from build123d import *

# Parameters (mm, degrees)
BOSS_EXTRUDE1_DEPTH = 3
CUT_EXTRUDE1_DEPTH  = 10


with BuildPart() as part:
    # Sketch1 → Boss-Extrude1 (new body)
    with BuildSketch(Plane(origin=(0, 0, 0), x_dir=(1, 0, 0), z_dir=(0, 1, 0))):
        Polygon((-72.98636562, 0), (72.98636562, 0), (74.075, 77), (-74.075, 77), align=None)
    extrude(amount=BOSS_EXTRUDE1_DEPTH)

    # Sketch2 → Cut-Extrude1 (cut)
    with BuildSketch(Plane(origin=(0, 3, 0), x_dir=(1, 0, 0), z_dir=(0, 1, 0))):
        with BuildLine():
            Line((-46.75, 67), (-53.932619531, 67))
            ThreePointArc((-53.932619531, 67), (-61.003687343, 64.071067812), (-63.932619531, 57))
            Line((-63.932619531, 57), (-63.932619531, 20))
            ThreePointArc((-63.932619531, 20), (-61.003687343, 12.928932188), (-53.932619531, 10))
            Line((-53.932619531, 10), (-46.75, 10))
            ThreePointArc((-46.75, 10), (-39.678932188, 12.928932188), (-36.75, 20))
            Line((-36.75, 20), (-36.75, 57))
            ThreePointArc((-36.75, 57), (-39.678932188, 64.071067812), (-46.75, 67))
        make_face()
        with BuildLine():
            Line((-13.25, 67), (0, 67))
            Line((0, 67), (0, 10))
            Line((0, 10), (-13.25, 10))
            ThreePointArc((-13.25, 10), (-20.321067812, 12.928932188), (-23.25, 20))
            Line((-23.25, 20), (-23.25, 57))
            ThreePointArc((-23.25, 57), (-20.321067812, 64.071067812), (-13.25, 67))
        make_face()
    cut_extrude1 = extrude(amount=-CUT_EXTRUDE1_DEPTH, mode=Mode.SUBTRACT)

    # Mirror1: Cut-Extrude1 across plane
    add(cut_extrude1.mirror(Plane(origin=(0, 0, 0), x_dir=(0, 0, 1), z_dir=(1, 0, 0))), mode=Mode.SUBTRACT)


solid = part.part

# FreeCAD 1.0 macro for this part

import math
import FreeCAD as App
import Part
import Sketcher
from FreeCAD import Vector
Q = App.Units.Quantity

doc = App.newDocument("Part")
body = doc.addObject("PartDesign::Body", "Body")

# Sketch on XZ plane
sketch1 = body.newObject("Sketcher::SketchObject", "Sketch")
sketch1.AttachmentSupport = (doc.getObject("XZ_Plane"), [""])
sketch1.MapMode = "FlatFace"
sketch1.addGeometry(Part.LineSegment(Vector(-72.986366, 0, 0), Vector(72.986366, 0, 0)), False)
sketch1.addGeometry(Part.LineSegment(Vector(72.986366, 0, 0), Vector(74.075, -77, 0)), False)
sketch1.addGeometry(Part.LineSegment(Vector(74.075, -77, 0), Vector(-74.075, -77, 0)), False)
sketch1.addGeometry(Part.LineSegment(Vector(-74.075, -77, 0), Vector(-72.986366, 0, 0)), False)
sketch1.addConstraint(Sketcher.Constraint("Coincident", 0, 2, 1, 1))
sketch1.addConstraint(Sketcher.Constraint("Coincident", 1, 2, 2, 1))
sketch1.addConstraint(Sketcher.Constraint("Coincident", 2, 2, 3, 1))
sketch1.addConstraint(Sketcher.Constraint("Coincident", 3, 2, 0, 1))
sketch1.addConstraint(Sketcher.Constraint("Horizontal", 0))
sketch1.addConstraint(Sketcher.Constraint("Horizontal", 2))
sketch1.addConstraint(Sketcher.Constraint("Symmetric", 0, 2, 3, 2, -1, 1))
sketch1.addConstraint(Sketcher.Constraint("Equal", 1, 3))
sketch1.addConstraint(Sketcher.Constraint("DistanceY", 1, 2, -1, 1, Q("77 mm")))
sketch1.addConstraint(Sketcher.Constraint("DistanceX", 2, 2, 2, 1, Q("148.15 mm")))
sketch1.addConstraint(Sketcher.Constraint("Angle", 1, Q("-89.19 deg")))
pad1 = body.newObject("PartDesign::Pad", "Pad")
pad1.Profile = sketch1
pad1.Length = 3
pad1.Reversed = True

# Sketch on XZ plane
sketch2 = body.newObject("Sketcher::SketchObject", "Sketch001")
sketch2.AttachmentSupport = (doc.getObject("XZ_Plane"), [""])
sketch2.MapMode = "FlatFace"
sketch2.AttachmentOffset = App.Placement(Vector(0, 0, -3), App.Rotation())
sketch2.addGeometry(Part.LineSegment(Vector(-46.75, -67, 0), Vector(-53.93262, -67, 0)), False)
sketch2.addGeometry(Part.ArcOfCircle(Part.Circle(Vector(-53.93262, -57, 0), Vector(0, 0, 1), 10), math.radians(180), math.radians(270)), False)
sketch2.addGeometry(Part.LineSegment(Vector(-63.93262, -57, 0), Vector(-63.93262, -20, 0)), False)
sketch2.addGeometry(Part.ArcOfCircle(Part.Circle(Vector(-53.93262, -20, 0), Vector(0, 0, 1), 10), math.radians(90), math.radians(180)), False)
sketch2.addGeometry(Part.LineSegment(Vector(-53.93262, -10, 0), Vector(-46.75, -10, 0)), False)
sketch2.addGeometry(Part.ArcOfCircle(Part.Circle(Vector(-46.75, -20, 0), Vector(0, 0, 1), 10), math.radians(0), math.radians(90)), False)
sketch2.addGeometry(Part.LineSegment(Vector(-36.75, -20, 0), Vector(-36.75, -57, 0)), False)
sketch2.addGeometry(Part.ArcOfCircle(Part.Circle(Vector(-46.75, -57, 0), Vector(0, 0, 1), 10), math.radians(-90), math.radians(0)), False)
sketch2.addGeometry(Part.LineSegment(Vector(0, -67, 0), Vector(-13.25, -67, 0)), False)
sketch2.addGeometry(Part.ArcOfCircle(Part.Circle(Vector(-13.25, -57, 0), Vector(0, 0, 1), 10), math.radians(180), math.radians(270)), False)
sketch2.addGeometry(Part.LineSegment(Vector(-23.25, -57, 0), Vector(-23.25, -20, 0)), False)
sketch2.addGeometry(Part.ArcOfCircle(Part.Circle(Vector(-13.25, -20, 0), Vector(0, 0, 1), 10), math.radians(90), math.radians(180)), False)
sketch2.addGeometry(Part.LineSegment(Vector(-13.25, -10, 0), Vector(0, -10, 0)), False)
sketch2.addGeometry(Part.LineSegment(Vector(0, -10, 0), Vector(0, -67, 0)), False)
sketch2.addConstraint(Sketcher.Constraint("Tangent", 0, 2, 1, 2))
sketch2.addConstraint(Sketcher.Constraint("Tangent", 1, 1, 2, 1))
sketch2.addConstraint(Sketcher.Constraint("Tangent", 2, 2, 3, 2))
sketch2.addConstraint(Sketcher.Constraint("Tangent", 3, 1, 4, 1))
sketch2.addConstraint(Sketcher.Constraint("Tangent", 4, 2, 5, 2))
sketch2.addConstraint(Sketcher.Constraint("Tangent", 5, 1, 6, 1))
sketch2.addConstraint(Sketcher.Constraint("Tangent", 6, 2, 7, 2))
sketch2.addConstraint(Sketcher.Constraint("Tangent", 7, 1, 0, 1))
sketch2.addConstraint(Sketcher.Constraint("Tangent", 8, 2, 9, 2))
sketch2.addConstraint(Sketcher.Constraint("Tangent", 9, 1, 10, 1))
sketch2.addConstraint(Sketcher.Constraint("Tangent", 10, 2, 11, 2))
sketch2.addConstraint(Sketcher.Constraint("Tangent", 11, 1, 12, 1))
sketch2.addConstraint(Sketcher.Constraint("Coincident", 12, 2, 13, 1))
sketch2.addConstraint(Sketcher.Constraint("Coincident", 13, 2, 8, 1))
sketch2.addConstraint(Sketcher.Constraint("Horizontal", 0))
sketch2.addConstraint(Sketcher.Constraint("Vertical", 2))
sketch2.addConstraint(Sketcher.Constraint("Horizontal", 4))
sketch2.addConstraint(Sketcher.Constraint("Vertical", 6))
sketch2.addConstraint(Sketcher.Constraint("Horizontal", 8))
sketch2.addConstraint(Sketcher.Constraint("Vertical", 10))
sketch2.addConstraint(Sketcher.Constraint("Horizontal", 12))
sketch2.addConstraint(Sketcher.Constraint("Vertical", 13))
sketch2.addConstraint(Sketcher.Constraint("Equal", 1, 3))
sketch2.addConstraint(Sketcher.Constraint("Equal", 3, 5))
sketch2.addConstraint(Sketcher.Constraint("Equal", 5, 7))
sketch2.addConstraint(Sketcher.Constraint("Equal", 7, 9))
sketch2.addConstraint(Sketcher.Constraint("Equal", 9, 11))
sketch2.addConstraint(Sketcher.Constraint("PointOnObject", 12, 2, -2))
sketch2.addConstraint(Sketcher.Constraint("Horizontal", 7, 3, 9, 3))
sketch2.addConstraint(Sketcher.Constraint("Horizontal", 5, 3, 11, 3))
sketch2.addConstraint(Sketcher.Constraint("Radius", 1, Q("10 mm")))
sketch2.addConstraint(Sketcher.Constraint("DistanceY", 2, 1, 2, 2, Q("37 mm")))
sketch2.addConstraint(Sketcher.Constraint("DistanceY", 1, 3, -1, 1, Q("57 mm")))
sketch2.addConstraint(Sketcher.Constraint("DistanceX", 8, 2, 8, 1, Q("13.25 mm")))
sketch2.addConstraint(Sketcher.Constraint("DistanceX", 7, 3, 9, 3, Q("33.5 mm")))
sketch2.addConstraint(Sketcher.Constraint("DistanceX", 0, 2, 0, 1, Q("7.18262 mm")))
pocket1 = body.newObject("PartDesign::Pocket", "Pocket")
pocket1.Profile = sketch2
pocket1.Length = 10
pocket1.Reversed = True
doc.recompute()

mirrored = body.newObject("PartDesign::Mirrored", "Mirrored")
mirrored.Originals = [pocket1]
mirrored.MirrorPlane = (doc.getObject("YZ_Plane"), [""])
body.Tip = mirrored

doc.recompute()
